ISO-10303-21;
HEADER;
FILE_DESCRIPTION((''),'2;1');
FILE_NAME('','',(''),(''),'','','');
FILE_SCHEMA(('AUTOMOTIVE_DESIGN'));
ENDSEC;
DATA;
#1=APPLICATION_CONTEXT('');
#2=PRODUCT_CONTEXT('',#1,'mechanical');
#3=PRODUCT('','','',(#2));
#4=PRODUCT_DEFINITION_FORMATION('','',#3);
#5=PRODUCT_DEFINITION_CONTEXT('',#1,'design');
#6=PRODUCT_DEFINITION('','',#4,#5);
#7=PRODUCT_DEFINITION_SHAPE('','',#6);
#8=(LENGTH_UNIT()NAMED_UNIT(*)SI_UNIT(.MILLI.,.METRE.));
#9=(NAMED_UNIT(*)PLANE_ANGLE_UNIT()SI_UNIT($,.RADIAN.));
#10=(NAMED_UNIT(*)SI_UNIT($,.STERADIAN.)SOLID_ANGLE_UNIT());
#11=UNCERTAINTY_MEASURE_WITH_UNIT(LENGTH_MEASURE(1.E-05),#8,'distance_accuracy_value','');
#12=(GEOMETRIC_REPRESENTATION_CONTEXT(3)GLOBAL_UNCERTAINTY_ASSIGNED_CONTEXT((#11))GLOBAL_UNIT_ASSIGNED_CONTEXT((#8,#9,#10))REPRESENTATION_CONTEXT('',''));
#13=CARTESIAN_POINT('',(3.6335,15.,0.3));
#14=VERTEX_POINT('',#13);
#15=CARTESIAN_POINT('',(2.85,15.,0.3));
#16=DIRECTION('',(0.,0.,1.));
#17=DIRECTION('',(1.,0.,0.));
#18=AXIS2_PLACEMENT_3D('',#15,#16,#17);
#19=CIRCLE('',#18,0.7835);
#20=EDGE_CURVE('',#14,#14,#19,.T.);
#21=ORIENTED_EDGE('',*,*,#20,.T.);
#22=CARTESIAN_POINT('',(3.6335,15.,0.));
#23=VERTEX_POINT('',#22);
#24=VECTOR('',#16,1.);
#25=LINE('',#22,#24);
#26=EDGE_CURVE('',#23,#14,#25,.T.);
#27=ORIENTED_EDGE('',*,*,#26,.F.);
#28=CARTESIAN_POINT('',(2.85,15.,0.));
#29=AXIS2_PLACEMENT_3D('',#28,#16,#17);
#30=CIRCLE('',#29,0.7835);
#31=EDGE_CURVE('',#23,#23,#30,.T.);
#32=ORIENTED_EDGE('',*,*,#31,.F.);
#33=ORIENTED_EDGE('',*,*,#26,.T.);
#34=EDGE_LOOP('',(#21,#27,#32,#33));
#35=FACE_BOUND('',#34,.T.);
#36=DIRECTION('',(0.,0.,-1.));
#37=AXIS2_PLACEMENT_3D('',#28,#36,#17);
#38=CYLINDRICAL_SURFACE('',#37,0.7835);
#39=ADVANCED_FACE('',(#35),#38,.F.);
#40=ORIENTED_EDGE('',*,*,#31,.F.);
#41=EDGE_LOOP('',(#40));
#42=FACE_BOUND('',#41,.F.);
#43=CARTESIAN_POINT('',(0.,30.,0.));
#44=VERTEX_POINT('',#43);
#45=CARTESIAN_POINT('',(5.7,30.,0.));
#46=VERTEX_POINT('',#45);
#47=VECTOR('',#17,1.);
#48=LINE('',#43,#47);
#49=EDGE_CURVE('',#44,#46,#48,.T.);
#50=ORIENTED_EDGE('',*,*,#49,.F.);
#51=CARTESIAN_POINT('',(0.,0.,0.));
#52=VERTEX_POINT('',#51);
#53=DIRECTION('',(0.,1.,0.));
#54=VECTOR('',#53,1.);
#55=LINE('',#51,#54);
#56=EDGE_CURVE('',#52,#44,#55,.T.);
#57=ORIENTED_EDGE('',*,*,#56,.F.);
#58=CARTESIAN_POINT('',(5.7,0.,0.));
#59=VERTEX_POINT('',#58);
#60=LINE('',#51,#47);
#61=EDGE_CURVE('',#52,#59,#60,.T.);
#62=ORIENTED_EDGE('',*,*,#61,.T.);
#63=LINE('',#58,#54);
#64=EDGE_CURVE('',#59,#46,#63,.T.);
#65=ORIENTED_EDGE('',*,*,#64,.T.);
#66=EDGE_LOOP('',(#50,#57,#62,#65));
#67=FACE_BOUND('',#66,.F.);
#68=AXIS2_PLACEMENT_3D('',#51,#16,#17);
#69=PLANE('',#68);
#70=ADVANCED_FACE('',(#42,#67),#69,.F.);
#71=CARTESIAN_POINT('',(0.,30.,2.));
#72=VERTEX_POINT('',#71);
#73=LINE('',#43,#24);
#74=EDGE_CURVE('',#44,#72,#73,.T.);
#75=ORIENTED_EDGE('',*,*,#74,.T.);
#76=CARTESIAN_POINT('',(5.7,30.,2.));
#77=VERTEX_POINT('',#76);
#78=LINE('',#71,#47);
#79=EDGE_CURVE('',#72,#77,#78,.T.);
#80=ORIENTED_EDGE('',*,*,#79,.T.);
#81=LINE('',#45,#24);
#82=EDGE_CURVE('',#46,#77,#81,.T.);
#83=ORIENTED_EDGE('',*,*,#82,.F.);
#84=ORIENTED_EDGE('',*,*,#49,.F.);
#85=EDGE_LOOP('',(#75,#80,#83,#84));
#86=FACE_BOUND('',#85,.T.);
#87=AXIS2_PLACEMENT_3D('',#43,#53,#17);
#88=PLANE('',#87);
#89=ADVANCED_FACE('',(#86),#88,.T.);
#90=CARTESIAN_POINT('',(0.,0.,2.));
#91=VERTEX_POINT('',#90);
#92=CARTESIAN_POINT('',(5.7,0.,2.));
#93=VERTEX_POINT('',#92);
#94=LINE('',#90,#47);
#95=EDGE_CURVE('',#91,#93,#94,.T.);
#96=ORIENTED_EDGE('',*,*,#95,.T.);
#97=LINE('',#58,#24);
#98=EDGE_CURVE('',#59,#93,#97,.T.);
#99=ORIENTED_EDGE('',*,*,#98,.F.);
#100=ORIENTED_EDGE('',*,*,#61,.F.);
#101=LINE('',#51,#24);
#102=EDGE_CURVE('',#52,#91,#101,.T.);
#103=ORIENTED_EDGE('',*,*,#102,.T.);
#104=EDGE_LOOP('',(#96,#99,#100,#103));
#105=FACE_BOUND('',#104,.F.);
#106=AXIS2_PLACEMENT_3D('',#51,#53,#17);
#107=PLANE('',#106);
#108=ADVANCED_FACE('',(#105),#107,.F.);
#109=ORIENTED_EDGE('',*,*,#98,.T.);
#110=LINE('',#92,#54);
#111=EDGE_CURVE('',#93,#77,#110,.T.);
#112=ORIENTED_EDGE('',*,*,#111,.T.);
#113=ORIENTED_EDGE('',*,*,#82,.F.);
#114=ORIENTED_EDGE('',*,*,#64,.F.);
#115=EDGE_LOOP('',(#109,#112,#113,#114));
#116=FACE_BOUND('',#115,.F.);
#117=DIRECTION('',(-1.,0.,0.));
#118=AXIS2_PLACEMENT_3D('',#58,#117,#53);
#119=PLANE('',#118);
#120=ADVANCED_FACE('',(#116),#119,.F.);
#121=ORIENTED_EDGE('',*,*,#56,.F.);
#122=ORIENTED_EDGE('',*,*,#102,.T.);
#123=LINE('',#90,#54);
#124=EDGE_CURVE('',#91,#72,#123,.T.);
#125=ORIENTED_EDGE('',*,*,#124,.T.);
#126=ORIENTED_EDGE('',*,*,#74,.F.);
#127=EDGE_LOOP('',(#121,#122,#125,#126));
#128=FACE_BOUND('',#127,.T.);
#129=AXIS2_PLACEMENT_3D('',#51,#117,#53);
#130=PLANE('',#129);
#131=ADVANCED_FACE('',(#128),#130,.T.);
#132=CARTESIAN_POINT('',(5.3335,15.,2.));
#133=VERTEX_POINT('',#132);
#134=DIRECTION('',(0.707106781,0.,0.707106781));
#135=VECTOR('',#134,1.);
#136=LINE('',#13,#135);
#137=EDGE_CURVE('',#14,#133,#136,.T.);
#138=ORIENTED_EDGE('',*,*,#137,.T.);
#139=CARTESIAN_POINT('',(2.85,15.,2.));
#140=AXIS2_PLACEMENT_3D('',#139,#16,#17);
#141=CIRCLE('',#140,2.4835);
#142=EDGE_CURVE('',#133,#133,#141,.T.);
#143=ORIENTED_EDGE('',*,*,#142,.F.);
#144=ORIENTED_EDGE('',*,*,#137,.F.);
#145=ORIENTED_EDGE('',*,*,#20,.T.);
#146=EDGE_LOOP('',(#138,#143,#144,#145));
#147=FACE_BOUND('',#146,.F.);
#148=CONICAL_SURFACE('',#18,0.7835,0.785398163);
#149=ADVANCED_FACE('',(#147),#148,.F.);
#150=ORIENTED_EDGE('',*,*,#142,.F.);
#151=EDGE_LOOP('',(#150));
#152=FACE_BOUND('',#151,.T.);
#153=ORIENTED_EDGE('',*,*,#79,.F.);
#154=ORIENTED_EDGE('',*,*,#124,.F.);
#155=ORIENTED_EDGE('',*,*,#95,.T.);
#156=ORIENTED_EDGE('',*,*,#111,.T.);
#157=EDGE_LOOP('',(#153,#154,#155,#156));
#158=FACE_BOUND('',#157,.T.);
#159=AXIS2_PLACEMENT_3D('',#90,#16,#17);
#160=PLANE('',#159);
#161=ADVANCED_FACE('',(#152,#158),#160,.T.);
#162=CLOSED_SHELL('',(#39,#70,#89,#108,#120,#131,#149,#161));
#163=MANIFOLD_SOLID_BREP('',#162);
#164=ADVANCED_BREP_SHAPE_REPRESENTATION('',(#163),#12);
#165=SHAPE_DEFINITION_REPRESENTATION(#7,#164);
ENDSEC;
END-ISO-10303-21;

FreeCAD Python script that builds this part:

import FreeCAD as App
import Part
import Sketcher
from FreeCAD import Vector
Q = App.Units.Quantity


def edges_at(feature, points):
    """Names of the edges that pass closest to the given points."""
    edges = feature.Shape.Edges
    near = lambda p: min(range(len(edges)), key=lambda i: edges[i].distToShape(Part.Vertex(*p))[0])
    return sorted({f"Edge{near(p) + 1}" for p in points})


def add_polygon(sketch, points):
    """Adds a closed chain of lines whose ends are joined by coincident constraints."""
    first, n = sketch.GeometryCount, len(points)
    for a, b in zip(points, points[1:] + points[:1]):
        sketch.addGeometry(Part.LineSegment(App.Vector(*a, 0), App.Vector(*b, 0)), False)
    for i in range(n):
        sketch.addConstraint(Sketcher.Constraint("Coincident", first + i, 2, first + (i + 1) % n, 1))

doc = App.newDocument("Part")
params = doc.addObject("Spreadsheet::Sheet", "Params")
for row, (alias, value) in enumerate([
    ("sketch1_height", "30 mm"),
    ("sketch1_width", "5.7 mm"),
    ("pad1_length", "2 mm"),
    ("chamfer_size", "1.7 mm"),
], start=1):
    params.set(f"A{row}", alias)
    params.set(f"B{row}", "=" + value)
    params.setAlias(f"B{row}", alias)

body = doc.addObject("PartDesign::Body", "Body")

# Sketch on XY plane
sketch1 = body.newObject("Sketcher::SketchObject", "Sketch")
sketch1.AttachmentSupport = (doc.getObject("XY_Plane"), [""])
sketch1.MapMode = "FlatFace"
add_polygon(sketch1, [(0, 30), (0, 0), (5.7, 0), (5.7, 30)])  # lines 0-3
sketch1.addGeometry(Part.Circle(Vector(2.85, 15, 0), Vector(0, 0, 1), 0.7835), False)  # 4
sketch1.addConstraint([
    Sketcher.Constraint("Vertical", 0),
    Sketcher.Constraint("Horizontal", 1),
    Sketcher.Constraint("Vertical", 2),
    Sketcher.Constraint("Horizontal", 3),
    Sketcher.Constraint("Coincident", 0, 2, -1, 1),
    Sketcher.Constraint("DistanceY", 0, 2, 0, 1, Q("30 mm")),
    Sketcher.Constraint("Diameter", 4, Q("1.567 mm")),
    Sketcher.Constraint("DistanceX", 1, 1, 1, 2, Q("5.7 mm")),
    Sketcher.Constraint("DistanceY", -1, 1, 4, 3, Q("15 mm")),
    Sketcher.Constraint("DistanceX", -1, 1, 4, 3, Q("2.85 mm")),
])
sketch1.setExpression("Constraints[9]", "Params.sketch1_height")
sketch1.setExpression("Constraints[11]", "Params.sketch1_width")
pad1 = body.newObject("PartDesign::Pad", "Pad")
pad1.Profile = sketch1
pad1.setExpression("Length", "Params.pad1_length")
doc.recompute()

chamfer = body.newObject("PartDesign::Chamfer", "Chamfer")
chamfer.Base = (pad1, edges_at(pad1, [(2.067, 15, 2)]))
chamfer.setExpression("Size", "Params.chamfer_size")

doc.recompute()
